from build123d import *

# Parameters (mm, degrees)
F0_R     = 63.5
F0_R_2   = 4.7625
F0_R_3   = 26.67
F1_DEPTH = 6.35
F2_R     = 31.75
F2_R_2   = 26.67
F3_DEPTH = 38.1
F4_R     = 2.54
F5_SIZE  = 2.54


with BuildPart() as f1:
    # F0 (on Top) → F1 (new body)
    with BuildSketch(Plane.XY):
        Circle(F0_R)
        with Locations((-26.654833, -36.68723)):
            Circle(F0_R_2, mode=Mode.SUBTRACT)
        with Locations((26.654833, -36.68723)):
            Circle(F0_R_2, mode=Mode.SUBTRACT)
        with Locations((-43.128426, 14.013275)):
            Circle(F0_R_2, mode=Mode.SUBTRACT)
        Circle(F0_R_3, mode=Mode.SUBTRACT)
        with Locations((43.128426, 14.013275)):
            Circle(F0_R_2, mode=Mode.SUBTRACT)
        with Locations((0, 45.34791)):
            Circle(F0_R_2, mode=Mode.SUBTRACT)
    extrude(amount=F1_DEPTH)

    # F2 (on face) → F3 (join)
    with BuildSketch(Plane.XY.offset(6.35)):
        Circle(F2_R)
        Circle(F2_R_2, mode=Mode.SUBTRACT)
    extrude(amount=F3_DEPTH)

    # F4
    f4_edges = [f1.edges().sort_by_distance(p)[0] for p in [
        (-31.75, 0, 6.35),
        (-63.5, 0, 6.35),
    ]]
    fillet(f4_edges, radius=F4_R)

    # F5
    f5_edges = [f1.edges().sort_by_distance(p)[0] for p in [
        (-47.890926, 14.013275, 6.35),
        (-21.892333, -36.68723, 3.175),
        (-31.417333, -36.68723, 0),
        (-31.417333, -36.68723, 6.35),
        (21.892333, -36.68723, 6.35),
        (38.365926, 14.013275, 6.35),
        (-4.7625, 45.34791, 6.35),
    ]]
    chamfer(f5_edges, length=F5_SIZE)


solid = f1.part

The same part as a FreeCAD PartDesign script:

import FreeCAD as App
import Part
import Sketcher
from FreeCAD import Vector
Q = App.Units.Quantity


def edges_at(feature, points):
    """Names of the edges that pass closest to the given points."""
    edges = feature.Shape.Edges
    near = lambda p: min(range(len(edges)), key=lambda i: edges[i].distToShape(Part.Vertex(*p))[0])
    return sorted({f"Edge{near(p) + 1}" for p in points})

doc = App.newDocument("Part")
params = doc.addObject("Spreadsheet::Sheet", "Params")
for row, (alias, value) in enumerate([
    ("sketch1_diameter", "5 in"),
    ("sketch1_diameter2", "2.1 in"),
    ("sketch1_diameter3", "0.375 in"),
    ("pad1_length", "0.25 in"),
    ("sketch2_diameter", "2.5 in"),
    ("sketch2_diameter2", "2.1 in"),
    ("pad2_length", "1.5 in"),
    ("fillet_radius", "0.1 in"),
    ("chamfer_size", "0.1 in"),
], start=1):
    params.set(f"A{row}", alias)
    params.set(f"B{row}", "=" + value)
    params.setAlias(f"B{row}", alias)

body = doc.addObject("PartDesign::Body", "Body")

# Sketch on XY plane
sketch1 = body.newObject("Sketcher::SketchObject", "Sketch")
sketch1.AttachmentSupport = (doc.getObject("XY_Plane"), [""])
sketch1.MapMode = "FlatFace"
sketch1.addGeometry(Part.Circle(Vector(0, 0, 0), Vector(0, 0, 1), 63.5), False)
sketch1.addGeometry(Part.Circle(Vector(-26.7, -36.7, 0), Vector(0, 0, 1), 4.8), False)
sketch1.addGeometry(Part.Circle(Vector(26.7, -36.7, 0), Vector(0, 0, 1), 4.8), False)
sketch1.addGeometry(Part.Circle(Vector(0, 0, 0), Vector(0, 0, 1), 26.7), False)
sketch1.addGeometry(Part.Circle(Vector(-43.1, 14, 0), Vector(0, 0, 1), 4.8), False)
sketch1.addGeometry(Part.Circle(Vector(43.1, 14, 0), Vector(0, 0, 1), 4.8), False)
sketch1.addGeometry(Part.Circle(Vector(0, 45.3, 0), Vector(0, 0, 1), 4.8), False)
sketch1.addConstraint(Sketcher.Constraint("Coincident", 0, 3, -1, 1))
sketch1.addConstraint(Sketcher.Constraint("Coincident", 3, 3, -1, 1))
sketch1.addConstraint(Sketcher.Constraint("Equal", 1, 2))
sketch1.addConstraint(Sketcher.Constraint("Equal", 2, 4))
sketch1.addConstraint(Sketcher.Constraint("Equal", 4, 5))
sketch1.addConstraint(Sketcher.Constraint("Equal", 5, 6))
sketch1.addConstraint(Sketcher.Constraint("Symmetric", 1, 3, 2, 3, -2))
sketch1.addConstraint(Sketcher.Constraint("Symmetric", 4, 3, 5, 3, -2))
sketch1.addConstraint(Sketcher.Constraint("PointOnObject", 6, 3, -2))
sketch1.addConstraint(Sketcher.Constraint("Diameter", 0, Q("5 in")))
sketch1.addConstraint(Sketcher.Constraint("Diameter", 3, Q("2.1 in")))
sketch1.addConstraint(Sketcher.Constraint("Diameter", 1, Q("0.375 in")))
sketch1.addConstraint(Sketcher.Constraint("DistanceY", 1, 3, -1, 1, 36.68723))
sketch1.addConstraint(Sketcher.Constraint("DistanceY", -1, 1, 6, 3, 45.34791))
sketch1.addConstraint(Sketcher.Constraint("DistanceX", 4, 3, 2, 3, 69.783259))
sketch1.addConstraint(Sketcher.Constraint("DistanceX", 4, 3, 5, 3, 86.256852))
sketch1.addConstraint(Sketcher.Constraint("DistanceY", -1, 1, 4, 3, 14.013275))
sketch1.setExpression("Constraints[9]", "Params.sketch1_diameter")
sketch1.setExpression("Constraints[10]", "Params.sketch1_diameter2")
sketch1.setExpression("Constraints[11]", "Params.sketch1_diameter3")
pad1 = body.newObject("PartDesign::Pad", "Pad")
pad1.Profile = sketch1
pad1.setExpression("Length", "Params.pad1_length")

# Sketch on XY plane
sketch2 = body.newObject("Sketcher::SketchObject", "Sketch001")
sketch2.AttachmentSupport = (doc.getObject("XY_Plane"), [""])
sketch2.MapMode = "FlatFace"
sketch2.AttachmentOffset = App.Placement(Vector(0, 0, 0.25 * 25.4), App.Rotation())
sketch2.addGeometry(Part.Circle(Vector(0, 0, 0), Vector(0, 0, 1), 32), False)
sketch2.addGeometry(Part.Circle(Vector(0, 0, 0), Vector(0, 0, 1), 27), False)
sketch2.addConstraint(Sketcher.Constraint("Coincident", 0, 3, -1, 1))
sketch2.addConstraint(Sketcher.Constraint("Coincident", 1, 3, -1, 1))
sketch2.addConstraint(Sketcher.Constraint("Diameter", 0, Q("2.5 in")))
sketch2.addConstraint(Sketcher.Constraint("Diameter", 1, Q("2.1 in")))
sketch2.setExpression("Constraints[2]", "Params.sketch2_diameter")
sketch2.setExpression("Constraints[3]", "Params.sketch2_diameter2")
pad2 = body.newObject("PartDesign::Pad", "Pad001")
pad2.Profile = sketch2
pad2.setExpression("Length", "Params.pad2_length")
doc.recompute()

fillet = body.newObject("PartDesign::Fillet", "Fillet")
fillet.Base = (pad2, edges_at(pad2, [(-31.75, 0, 6.35), (-63.5, 0, 6.35)]))
fillet.setExpression("Radius", "Params.fillet_radius")
doc.recompute()

chamfer = body.newObject("PartDesign::Chamfer", "Chamfer")
chamfer.Base = (fillet, edges_at(fillet, [
    (-47.891, 14.013, 6.35),
    (-21.892, -36.687, 3.175),
    (-31.417, -36.687, 0),
    (-31.417, -36.687, 6.35),
    (21.892, -36.687, 6.35),
    (38.366, 14.013, 6.35),
    (-4.763, 45.348, 6.35),
]))
chamfer.setExpression("Size", "Params.chamfer_size")

doc.recompute()
